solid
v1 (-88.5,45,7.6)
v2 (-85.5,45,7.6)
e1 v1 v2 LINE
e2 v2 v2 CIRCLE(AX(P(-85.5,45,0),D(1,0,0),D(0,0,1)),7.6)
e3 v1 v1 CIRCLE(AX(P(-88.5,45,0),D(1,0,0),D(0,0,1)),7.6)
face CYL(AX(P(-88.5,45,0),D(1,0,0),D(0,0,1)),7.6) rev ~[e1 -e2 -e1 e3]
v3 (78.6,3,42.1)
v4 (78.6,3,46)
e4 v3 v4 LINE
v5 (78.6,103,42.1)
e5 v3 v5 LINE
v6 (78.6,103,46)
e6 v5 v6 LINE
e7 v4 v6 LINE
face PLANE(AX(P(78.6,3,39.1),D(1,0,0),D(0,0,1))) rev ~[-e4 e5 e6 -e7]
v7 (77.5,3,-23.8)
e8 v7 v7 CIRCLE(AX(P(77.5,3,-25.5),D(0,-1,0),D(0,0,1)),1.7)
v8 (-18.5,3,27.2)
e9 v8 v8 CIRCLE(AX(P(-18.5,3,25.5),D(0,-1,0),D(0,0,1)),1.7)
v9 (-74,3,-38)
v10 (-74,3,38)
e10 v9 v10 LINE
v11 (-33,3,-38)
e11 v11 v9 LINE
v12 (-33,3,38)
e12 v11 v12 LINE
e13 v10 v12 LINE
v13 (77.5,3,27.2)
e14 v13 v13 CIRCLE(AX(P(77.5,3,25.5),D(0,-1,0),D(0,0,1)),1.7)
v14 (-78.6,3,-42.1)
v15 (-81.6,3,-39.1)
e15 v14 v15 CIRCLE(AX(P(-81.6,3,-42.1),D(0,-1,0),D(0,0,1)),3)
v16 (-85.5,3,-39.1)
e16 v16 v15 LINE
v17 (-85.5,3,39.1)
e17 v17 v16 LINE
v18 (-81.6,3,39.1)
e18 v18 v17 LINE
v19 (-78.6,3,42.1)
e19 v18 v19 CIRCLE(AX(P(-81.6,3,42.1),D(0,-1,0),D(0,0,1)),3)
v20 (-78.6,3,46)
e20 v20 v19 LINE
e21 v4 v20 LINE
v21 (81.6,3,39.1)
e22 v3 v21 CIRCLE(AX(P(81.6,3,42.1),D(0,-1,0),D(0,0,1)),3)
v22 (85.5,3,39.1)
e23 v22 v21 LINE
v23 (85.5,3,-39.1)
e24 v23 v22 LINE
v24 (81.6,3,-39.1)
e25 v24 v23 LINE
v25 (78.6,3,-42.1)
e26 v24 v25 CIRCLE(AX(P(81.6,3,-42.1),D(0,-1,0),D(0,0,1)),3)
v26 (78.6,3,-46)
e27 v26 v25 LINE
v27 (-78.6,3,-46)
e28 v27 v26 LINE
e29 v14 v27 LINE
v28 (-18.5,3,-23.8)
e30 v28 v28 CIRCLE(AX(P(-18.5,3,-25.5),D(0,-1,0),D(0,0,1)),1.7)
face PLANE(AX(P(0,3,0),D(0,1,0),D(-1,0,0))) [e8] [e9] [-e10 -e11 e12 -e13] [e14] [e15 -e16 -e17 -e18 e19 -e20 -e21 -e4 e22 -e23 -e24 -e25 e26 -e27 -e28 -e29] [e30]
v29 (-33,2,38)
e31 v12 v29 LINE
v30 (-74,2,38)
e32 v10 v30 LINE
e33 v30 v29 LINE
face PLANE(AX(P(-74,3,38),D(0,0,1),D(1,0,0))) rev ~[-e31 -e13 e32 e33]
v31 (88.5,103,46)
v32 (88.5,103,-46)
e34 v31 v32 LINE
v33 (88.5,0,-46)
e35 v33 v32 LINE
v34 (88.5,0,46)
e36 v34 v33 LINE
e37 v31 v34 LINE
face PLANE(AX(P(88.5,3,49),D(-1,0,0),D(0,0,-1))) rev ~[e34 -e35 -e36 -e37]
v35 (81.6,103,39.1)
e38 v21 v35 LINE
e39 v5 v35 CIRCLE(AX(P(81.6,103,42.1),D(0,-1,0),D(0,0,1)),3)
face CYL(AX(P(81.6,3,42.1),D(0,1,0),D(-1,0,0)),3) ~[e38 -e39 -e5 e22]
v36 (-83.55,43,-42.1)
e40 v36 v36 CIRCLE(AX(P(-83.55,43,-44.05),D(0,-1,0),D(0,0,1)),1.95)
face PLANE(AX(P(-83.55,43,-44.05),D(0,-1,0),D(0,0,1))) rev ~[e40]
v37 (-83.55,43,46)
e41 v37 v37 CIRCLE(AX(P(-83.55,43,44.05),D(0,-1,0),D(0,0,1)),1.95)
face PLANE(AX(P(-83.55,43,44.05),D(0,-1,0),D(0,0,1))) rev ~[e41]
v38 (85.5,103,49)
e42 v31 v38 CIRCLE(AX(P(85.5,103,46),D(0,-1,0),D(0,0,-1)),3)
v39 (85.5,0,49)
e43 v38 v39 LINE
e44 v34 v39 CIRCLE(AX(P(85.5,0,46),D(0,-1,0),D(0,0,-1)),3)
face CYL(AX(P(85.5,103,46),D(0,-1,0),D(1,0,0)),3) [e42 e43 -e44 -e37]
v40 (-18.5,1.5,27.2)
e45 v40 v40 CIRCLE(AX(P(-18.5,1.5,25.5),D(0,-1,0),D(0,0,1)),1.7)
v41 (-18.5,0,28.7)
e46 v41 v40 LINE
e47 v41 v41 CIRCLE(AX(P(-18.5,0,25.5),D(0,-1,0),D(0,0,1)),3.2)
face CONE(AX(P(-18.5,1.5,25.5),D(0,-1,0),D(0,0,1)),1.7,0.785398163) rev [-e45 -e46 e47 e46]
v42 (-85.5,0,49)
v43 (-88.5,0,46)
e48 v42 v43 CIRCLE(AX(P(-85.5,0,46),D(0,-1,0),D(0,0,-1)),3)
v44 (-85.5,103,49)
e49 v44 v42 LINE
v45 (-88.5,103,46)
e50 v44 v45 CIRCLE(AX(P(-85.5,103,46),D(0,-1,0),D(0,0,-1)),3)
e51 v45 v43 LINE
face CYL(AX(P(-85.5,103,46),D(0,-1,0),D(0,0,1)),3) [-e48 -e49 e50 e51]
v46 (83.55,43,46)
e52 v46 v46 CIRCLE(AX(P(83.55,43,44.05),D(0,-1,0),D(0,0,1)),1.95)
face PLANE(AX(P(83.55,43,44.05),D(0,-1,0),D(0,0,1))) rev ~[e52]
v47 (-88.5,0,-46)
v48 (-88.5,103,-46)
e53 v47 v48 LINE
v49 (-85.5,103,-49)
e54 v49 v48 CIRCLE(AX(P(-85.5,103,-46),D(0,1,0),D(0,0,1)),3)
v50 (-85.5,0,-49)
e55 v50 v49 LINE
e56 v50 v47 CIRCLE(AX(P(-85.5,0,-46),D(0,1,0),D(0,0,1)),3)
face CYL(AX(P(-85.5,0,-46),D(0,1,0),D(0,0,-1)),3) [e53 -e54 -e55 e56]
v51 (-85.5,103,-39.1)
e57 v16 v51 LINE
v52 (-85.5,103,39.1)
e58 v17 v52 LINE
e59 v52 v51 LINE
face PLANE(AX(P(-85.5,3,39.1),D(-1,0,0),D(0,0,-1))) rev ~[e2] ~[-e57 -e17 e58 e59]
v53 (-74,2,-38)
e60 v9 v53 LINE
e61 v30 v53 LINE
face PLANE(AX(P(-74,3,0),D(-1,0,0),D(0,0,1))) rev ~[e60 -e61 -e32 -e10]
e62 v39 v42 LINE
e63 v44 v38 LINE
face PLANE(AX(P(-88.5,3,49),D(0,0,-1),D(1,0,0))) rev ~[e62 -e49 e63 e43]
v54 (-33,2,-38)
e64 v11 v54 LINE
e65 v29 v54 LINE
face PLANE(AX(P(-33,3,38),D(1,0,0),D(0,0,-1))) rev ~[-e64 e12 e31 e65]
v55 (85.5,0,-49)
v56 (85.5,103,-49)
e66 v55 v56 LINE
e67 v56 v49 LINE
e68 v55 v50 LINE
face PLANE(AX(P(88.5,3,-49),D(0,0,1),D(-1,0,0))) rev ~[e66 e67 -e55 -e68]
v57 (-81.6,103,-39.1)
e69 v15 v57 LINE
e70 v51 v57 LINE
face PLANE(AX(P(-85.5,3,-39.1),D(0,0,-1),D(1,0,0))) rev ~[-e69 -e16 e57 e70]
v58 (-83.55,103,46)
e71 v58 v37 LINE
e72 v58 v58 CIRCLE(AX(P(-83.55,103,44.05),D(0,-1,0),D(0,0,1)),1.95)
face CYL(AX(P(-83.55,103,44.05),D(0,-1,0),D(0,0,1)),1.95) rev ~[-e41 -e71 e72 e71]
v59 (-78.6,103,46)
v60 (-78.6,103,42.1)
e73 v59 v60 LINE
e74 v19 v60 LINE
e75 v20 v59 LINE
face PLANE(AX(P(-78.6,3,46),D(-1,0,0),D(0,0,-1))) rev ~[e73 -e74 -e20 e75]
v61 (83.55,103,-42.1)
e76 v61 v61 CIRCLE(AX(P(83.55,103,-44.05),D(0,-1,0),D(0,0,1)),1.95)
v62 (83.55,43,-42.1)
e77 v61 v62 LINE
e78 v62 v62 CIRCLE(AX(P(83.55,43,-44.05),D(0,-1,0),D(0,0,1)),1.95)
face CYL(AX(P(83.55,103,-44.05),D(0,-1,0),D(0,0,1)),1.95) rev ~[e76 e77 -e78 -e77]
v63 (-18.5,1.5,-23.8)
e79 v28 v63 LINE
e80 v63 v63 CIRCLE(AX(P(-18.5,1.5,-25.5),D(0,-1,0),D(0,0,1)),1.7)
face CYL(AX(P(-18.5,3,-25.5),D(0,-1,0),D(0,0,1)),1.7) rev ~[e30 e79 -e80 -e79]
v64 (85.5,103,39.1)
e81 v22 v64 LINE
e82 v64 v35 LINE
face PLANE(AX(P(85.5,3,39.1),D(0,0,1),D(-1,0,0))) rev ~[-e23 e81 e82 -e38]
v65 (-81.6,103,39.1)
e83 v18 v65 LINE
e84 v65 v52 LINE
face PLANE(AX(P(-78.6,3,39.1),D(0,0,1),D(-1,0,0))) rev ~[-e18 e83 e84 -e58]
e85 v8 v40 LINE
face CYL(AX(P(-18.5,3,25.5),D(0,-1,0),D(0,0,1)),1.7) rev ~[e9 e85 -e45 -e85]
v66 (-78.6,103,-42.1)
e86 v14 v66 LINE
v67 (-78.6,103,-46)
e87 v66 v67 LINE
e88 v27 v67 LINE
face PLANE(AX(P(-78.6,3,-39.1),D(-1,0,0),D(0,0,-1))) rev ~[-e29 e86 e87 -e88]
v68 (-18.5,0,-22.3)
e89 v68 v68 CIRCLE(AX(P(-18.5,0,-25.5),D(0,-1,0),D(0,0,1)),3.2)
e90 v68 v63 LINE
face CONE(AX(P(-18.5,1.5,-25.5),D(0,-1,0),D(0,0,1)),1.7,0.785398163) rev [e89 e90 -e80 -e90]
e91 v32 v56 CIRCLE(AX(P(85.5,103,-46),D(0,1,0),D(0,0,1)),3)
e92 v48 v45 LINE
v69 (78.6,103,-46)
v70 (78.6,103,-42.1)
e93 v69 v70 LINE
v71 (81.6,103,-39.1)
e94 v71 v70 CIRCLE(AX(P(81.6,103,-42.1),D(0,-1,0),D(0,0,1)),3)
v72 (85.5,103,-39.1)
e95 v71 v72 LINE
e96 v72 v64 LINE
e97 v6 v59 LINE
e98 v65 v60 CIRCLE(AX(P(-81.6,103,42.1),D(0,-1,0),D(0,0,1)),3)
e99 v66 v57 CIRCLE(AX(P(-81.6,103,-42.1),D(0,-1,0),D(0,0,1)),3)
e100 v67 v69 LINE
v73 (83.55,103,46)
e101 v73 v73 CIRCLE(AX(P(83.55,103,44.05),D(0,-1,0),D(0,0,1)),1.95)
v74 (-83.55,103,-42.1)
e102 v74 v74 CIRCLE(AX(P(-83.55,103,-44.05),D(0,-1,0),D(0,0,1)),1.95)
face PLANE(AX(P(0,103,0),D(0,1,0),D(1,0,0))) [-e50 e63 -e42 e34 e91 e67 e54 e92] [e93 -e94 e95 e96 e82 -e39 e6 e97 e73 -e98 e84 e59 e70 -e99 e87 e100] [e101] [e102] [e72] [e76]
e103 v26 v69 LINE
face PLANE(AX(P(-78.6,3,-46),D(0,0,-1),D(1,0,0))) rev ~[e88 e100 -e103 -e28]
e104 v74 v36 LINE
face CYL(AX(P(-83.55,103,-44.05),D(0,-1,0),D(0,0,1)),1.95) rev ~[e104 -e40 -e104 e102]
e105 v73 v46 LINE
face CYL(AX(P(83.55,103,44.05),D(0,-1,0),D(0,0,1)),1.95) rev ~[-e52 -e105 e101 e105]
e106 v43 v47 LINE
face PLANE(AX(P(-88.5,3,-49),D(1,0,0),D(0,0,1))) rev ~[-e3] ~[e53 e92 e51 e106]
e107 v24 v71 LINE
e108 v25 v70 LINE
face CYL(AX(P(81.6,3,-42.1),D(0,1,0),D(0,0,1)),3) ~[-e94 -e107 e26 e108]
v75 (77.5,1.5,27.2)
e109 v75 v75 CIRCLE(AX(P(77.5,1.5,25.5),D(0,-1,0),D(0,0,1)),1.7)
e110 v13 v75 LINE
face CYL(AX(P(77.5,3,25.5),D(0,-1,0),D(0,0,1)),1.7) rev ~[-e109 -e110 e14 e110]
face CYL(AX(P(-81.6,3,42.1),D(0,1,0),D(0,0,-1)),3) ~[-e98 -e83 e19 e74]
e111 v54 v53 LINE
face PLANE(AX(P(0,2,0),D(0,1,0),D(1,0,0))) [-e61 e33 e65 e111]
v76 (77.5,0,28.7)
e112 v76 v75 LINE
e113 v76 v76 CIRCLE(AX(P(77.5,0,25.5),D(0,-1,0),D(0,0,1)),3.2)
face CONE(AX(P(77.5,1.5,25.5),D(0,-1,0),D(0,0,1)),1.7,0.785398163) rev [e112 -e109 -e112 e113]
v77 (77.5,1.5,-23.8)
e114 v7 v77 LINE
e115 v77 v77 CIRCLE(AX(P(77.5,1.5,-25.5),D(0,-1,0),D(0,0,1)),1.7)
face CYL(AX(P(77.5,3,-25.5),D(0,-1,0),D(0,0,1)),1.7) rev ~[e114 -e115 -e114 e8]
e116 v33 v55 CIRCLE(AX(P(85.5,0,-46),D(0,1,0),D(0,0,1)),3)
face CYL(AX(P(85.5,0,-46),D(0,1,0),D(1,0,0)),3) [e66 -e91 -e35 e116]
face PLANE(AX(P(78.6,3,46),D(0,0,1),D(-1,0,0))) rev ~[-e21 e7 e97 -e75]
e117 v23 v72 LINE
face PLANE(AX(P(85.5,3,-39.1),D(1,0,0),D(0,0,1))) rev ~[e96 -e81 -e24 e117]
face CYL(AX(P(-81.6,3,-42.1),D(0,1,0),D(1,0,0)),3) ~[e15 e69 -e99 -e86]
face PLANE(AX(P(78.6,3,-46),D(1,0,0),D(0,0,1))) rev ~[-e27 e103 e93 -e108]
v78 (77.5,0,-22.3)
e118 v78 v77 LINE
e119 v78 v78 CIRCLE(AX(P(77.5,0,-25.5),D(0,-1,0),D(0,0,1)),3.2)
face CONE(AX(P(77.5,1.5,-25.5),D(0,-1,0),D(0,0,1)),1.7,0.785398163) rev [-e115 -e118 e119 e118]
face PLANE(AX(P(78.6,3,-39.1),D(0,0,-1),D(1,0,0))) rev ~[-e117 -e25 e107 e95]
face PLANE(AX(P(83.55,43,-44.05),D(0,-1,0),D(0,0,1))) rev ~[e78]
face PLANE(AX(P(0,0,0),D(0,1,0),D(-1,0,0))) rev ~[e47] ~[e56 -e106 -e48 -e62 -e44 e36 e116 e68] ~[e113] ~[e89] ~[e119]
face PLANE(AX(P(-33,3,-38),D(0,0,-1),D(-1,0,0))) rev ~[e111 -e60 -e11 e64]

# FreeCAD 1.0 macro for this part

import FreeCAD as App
import Part
import Sketcher
from FreeCAD import Vector
Q = App.Units.Quantity


def edges_at(feature, points):
    """Names of the edges that pass closest to the given points."""
    edges = feature.Shape.Edges
    near = lambda p: min(range(len(edges)), key=lambda i: edges[i].distToShape(Part.Vertex(*p))[0])
    return sorted({f"Edge{near(p) + 1}" for p in points})

doc = App.newDocument("Part")
body = doc.addObject("PartDesign::Body", "Body")

# Sketch on XZ plane
sketch1 = body.newObject("Sketcher::SketchObject", "Sketch")
sketch1.AttachmentSupport = (doc.getObject("XZ_Plane"), [""])
sketch1.MapMode = "FlatFace"
sketch1.addGeometry(Part.LineSegment(Vector(88, -49, 0), Vector(-88, -49, 0)), False)
sketch1.addGeometry(Part.LineSegment(Vector(-88, -49, 0), Vector(-88, 49, 0)), False)
sketch1.addGeometry(Part.LineSegment(Vector(-88, 49, 0), Vector(88, 49, 0)), False)
sketch1.addGeometry(Part.LineSegment(Vector(88, 49, 0), Vector(88, -49, 0)), False)
sketch1.addConstraint(Sketcher.Constraint("Coincident", 0, 2, 1, 1))
sketch1.addConstraint(Sketcher.Constraint("Coincident", 1, 2, 2, 1))
sketch1.addConstraint(Sketcher.Constraint("Coincident", 2, 2, 3, 1))
sketch1.addConstraint(Sketcher.Constraint("Coincident", 3, 2, 0, 1))
sketch1.addConstraint(Sketcher.Constraint("Horizontal", 0))
sketch1.addConstraint(Sketcher.Constraint("Vertical", 1))
sketch1.addConstraint(Sketcher.Constraint("Horizontal", 2))
sketch1.addConstraint(Sketcher.Constraint("Vertical", 3))
sketch1.addConstraint(Sketcher.Constraint("Symmetric", 0, 2, 2, 2, -1, 1))
sketch1.addConstraint(Sketcher.Constraint("DistanceX", 0, 2, 0, 1, Q("177 mm")))
sketch1.addConstraint(Sketcher.Constraint("DistanceY", 1, 1, 1, 2, Q("98 mm")))
pad1 = body.newObject("PartDesign::Pad", "Pad")
pad1.Profile = sketch1
pad1.Length = 3
pad1.Reversed = True

# Sketch on XZ plane
sketch2 = body.newObject("Sketcher::SketchObject", "Sketch001")
sketch2.AttachmentSupport = (doc.getObject("XZ_Plane"), [""])
sketch2.MapMode = "FlatFace"
sketch2.AttachmentOffset = App.Placement(Vector(0, 0, -3), App.Rotation())
sketch2.addGeometry(Part.LineSegment(Vector(88, 49, 0), Vector(88, -49, 0)), False)
sketch2.addGeometry(Part.LineSegment(Vector(88, -49, 0), Vector(-88, -49, 0)), False)
sketch2.addGeometry(Part.LineSegment(Vector(-88, -49, 0), Vector(-88, 49, 0)), False)
sketch2.addGeometry(Part.LineSegment(Vector(-88, 49, 0), Vector(88, 49, 0)), False)
sketch2.addGeometry(Part.LineSegment(Vector(-79, 39, 0), Vector(-86, 39, 0)), False)
sketch2.addGeometry(Part.LineSegment(Vector(-86, 39, 0), Vector(-86, -39, 0)), False)
sketch2.addGeometry(Part.LineSegment(Vector(-86, -39, 0), Vector(-79, -39, 0)), False)
sketch2.addGeometry(Part.LineSegment(Vector(-79, -39, 0), Vector(-79, -46, 0)), False)
sketch2.addGeometry(Part.LineSegment(Vector(-79, -46, 0), Vector(79, -46, 0)), False)
sketch2.addGeometry(Part.LineSegment(Vector(79, -46, 0), Vector(79, -39, 0)), False)
sketch2.addGeometry(Part.LineSegment(Vector(79, -39, 0), Vector(86, -39, 0)), False)
sketch2.addGeometry(Part.LineSegment(Vector(86, -39, 0), Vector(86, 39, 0)), False)
sketch2.addGeometry(Part.LineSegment(Vector(86, 39, 0), Vector(79, 39, 0)), False)
sketch2.addGeometry(Part.LineSegment(Vector(79, 39, 0), Vector(79, 46, 0)), False)
sketch2.addGeometry(Part.LineSegment(Vector(79, 46, 0), Vector(-79, 46, 0)), False)
sketch2.addGeometry(Part.LineSegment(Vector(-79, 46, 0), Vector(-79, 39, 0)), False)
sketch2.addConstraint(Sketcher.Constraint("Coincident", 0, 2, 1, 1))
sketch2.addConstraint(Sketcher.Constraint("Coincident", 1, 2, 2, 1))
sketch2.addConstraint(Sketcher.Constraint("Coincident", 2, 2, 3, 1))
sketch2.addConstraint(Sketcher.Constraint("Coincident", 3, 2, 0, 1))
sketch2.addConstraint(Sketcher.Constraint("Coincident", 4, 2, 5, 1))
sketch2.addConstraint(Sketcher.Constraint("Coincident", 5, 2, 6, 1))
sketch2.addConstraint(Sketcher.Constraint("Coincident", 6, 2, 7, 1))
sketch2.addConstraint(Sketcher.Constraint("Coincident", 7, 2, 8, 1))
sketch2.addConstraint(Sketcher.Constraint("Coincident", 8, 2, 9, 1))
sketch2.addConstraint(Sketcher.Constraint("Coincident", 9, 2, 10, 1))
sketch2.addConstraint(Sketcher.Constraint("Coincident", 10, 2, 11, 1))
sketch2.addConstraint(Sketcher.Constraint("Coincident", 11, 2, 12, 1))
sketch2.addConstraint(Sketcher.Constraint("Coincident", 12, 2, 13, 1))
sketch2.addConstraint(Sketcher.Constraint("Coincident", 13, 2, 14, 1))
sketch2.addConstraint(Sketcher.Constraint("Coincident", 14, 2, 15, 1))
sketch2.addConstraint(Sketcher.Constraint("Coincident", 15, 2, 4, 1))
sketch2.addConstraint(Sketcher.Constraint("Vertical", 0))
sketch2.addConstraint(Sketcher.Constraint("Horizontal", 1))
sketch2.addConstraint(Sketcher.Constraint("Vertical", 2))
sketch2.addConstraint(Sketcher.Constraint("Horizontal", 3))
sketch2.addConstraint(Sketcher.Constraint("Horizontal", 4))
sketch2.addConstraint(Sketcher.Constraint("Vertical", 5))
sketch2.addConstraint(Sketcher.Constraint("Horizontal", 6))
sketch2.addConstraint(Sketcher.Constraint("Vertical", 7))
sketch2.addConstraint(Sketcher.Constraint("Horizontal", 8))
sketch2.addConstraint(Sketcher.Constraint("Vertical", 9))
sketch2.addConstraint(Sketcher.Constraint("Horizontal", 10))
sketch2.addConstraint(Sketcher.Constraint("Vertical", 11))
sketch2.addConstraint(Sketcher.Constraint("Horizontal", 12))
sketch2.addConstraint(Sketcher.Constraint("Vertical", 13))
sketch2.addConstraint(Sketcher.Constraint("Horizontal", 14))
sketch2.addConstraint(Sketcher.Constraint("Vertical", 15))
sketch2.addConstraint(Sketcher.Constraint("Symmetric", 0, 2, 2, 2, -1, 1))
sketch2.addConstraint(Sketcher.Constraint("Symmetric", 4, 2, 10, 2, -1, 1))
sketch2.addConstraint(Sketcher.Constraint("Symmetric", 6, 2, 12, 2, -1, 1))
sketch2.addConstraint(Sketcher.Constraint("Symmetric", 8, 2, 14, 2, -1, 1))
sketch2.addConstraint(Sketcher.Constraint("Symmetric", 6, 2, 9, 2, -2))
sketch2.addConstraint(Sketcher.Constraint("Equal", 12, 7))
sketch2.addConstraint(Sketcher.Constraint("DistanceX", 2, 2, 4, 2, Q("3 mm")))
sketch2.addConstraint(Sketcher.Constraint("DistanceY", 1, 2, 7, 2, Q("3 mm")))
sketch2.addConstraint(Sketcher.Constraint("DistanceY", 4, 2, 2, 2, Q("9.9 mm")))
sketch2.addConstraint(Sketcher.Constraint("DistanceX", 1, 2, 1, 1, Q("177 mm")))
sketch2.addConstraint(Sketcher.Constraint("DistanceY", 0, 2, 0, 1, Q("98 mm")))
pad2 = body.newObject("PartDesign::Pad", "Pad001")
pad2.Profile = sketch2
pad2.Length = 100
pad2.Reversed = True
doc.recompute()

fillet = body.newObject("PartDesign::Fillet", "Fillet")
fillet.Base = (pad2, edges_at(pad2, [
    (-78.6, 53, -39.1),
    (78.6, 53, -39.1),
    (-78.6, 53, 39.1),
    (78.6, 53, 39.1),
    (88.5, 51.5, -49),
    (-88.5, 51.5, -49),
    (-88.5, 51.5, 49),
    (88.5, 51.5, 49),
]))
fillet.Radius = 3

# Sketch on XZ plane
sketch3 = body.newObject("Sketcher::SketchObject", "Sketch002")
sketch3.AttachmentSupport = (doc.getObject("XZ_Plane"), [""])
sketch3.MapMode = "FlatFace"
sketch3.AttachmentOffset = App.Placement(Vector(0, 0, -103), App.Rotation())
sketch3.addGeometry(Part.Circle(Vector(-83.5, -44, 0), Vector(0, 0, 1), 1.9), False)
sketch3.addGeometry(Part.Circle(Vector(-83.5, 44, 0), Vector(0, 0, 1), 1.9), False)
sketch3.addGeometry(Part.Circle(Vector(83.5, 44, 0), Vector(0, 0, 1), 1.9), False)
sketch3.addGeometry(Part.Circle(Vector(83.5, -44, 0), Vector(0, 0, 1), 1.9), False)
sketch3.addConstraint(Sketcher.Constraint("Equal", 0, 1))
sketch3.addConstraint(Sketcher.Constraint("Equal", 1, 2))
sketch3.addConstraint(Sketcher.Constraint("Equal", 2, 3))
sketch3.addConstraint(Sketcher.Constraint("Symmetric", 0, 3, 2, 3, -1, 1))
sketch3.addConstraint(Sketcher.Constraint("Symmetric", 1, 3, 3, 3, -1, 1))
sketch3.addConstraint(Sketcher.Constraint("Symmetric", 1, 3, 2, 3, -2))
sketch3.addConstraint(Sketcher.Constraint("Diameter", 0, Q("3.9 mm")))
sketch3.addConstraint(Sketcher.Constraint("DistanceY", 0, 3, 1, 3, Q("88.1 mm")))
sketch3.addConstraint(Sketcher.Constraint("DistanceX", 1, 3, 2, 3, Q("167.1 mm")))
doc.recompute()
hole = body.newObject("PartDesign::Hole", "Hole")
hole.Profile = sketch3
hole.ThreadType = "None"
hole.Diameter = 3.9
hole.DepthType = "Dimension"
hole.Depth = 60
hole.DrillPoint = "Flat"
hole.Reversed = True

# Sketch on XZ plane
sketch4 = body.newObject("Sketcher::SketchObject", "Sketch003")
sketch4.AttachmentSupport = (doc.getObject("XZ_Plane"), [""])
sketch4.MapMode = "FlatFace"
sketch4.AttachmentOffset = App.Placement(Vector(0, 0, -3), App.Rotation())
sketch4.addGeometry(Part.Circle(Vector(-18.5, -25.5, 0), Vector(0, 0, 1), 1.7), False)
sketch4.addGeometry(Part.Circle(Vector(77.5, -25.5, 0), Vector(0, 0, 1), 1.7), False)
sketch4.addGeometry(Part.Circle(Vector(-18.5, 25.5, 0), Vector(0, 0, 1), 1.7), False)
sketch4.addGeometry(Part.Circle(Vector(77.5, 25.5, 0), Vector(0, 0, 1), 1.7), False)
sketch4.addConstraint(Sketcher.Constraint("Equal", 0, 1))
sketch4.addConstraint(Sketcher.Constraint("Equal", 1, 2))
sketch4.addConstraint(Sketcher.Constraint("Equal", 2, 3))
sketch4.addConstraint(Sketcher.Constraint("Symmetric", 0, 3, 2, 3, -1))
sketch4.addConstraint(Sketcher.Constraint("Symmetric", 1, 3, 3, 3, -1))
sketch4.addConstraint(Sketcher.Constraint("Horizontal", 0, 3, 1, 3))
sketch4.addConstraint(Sketcher.Constraint("Diameter", 0, Q("3.4 mm")))
sketch4.addConstraint(Sketcher.Constraint("DistanceX", 0, 3, 1, 3, Q("96 mm")))
sketch4.addConstraint(Sketcher.Constraint("DistanceY", 0, 3, 2, 3, Q("51 mm")))
sketch4.addConstraint(Sketcher.Constraint("DistanceX", 0, 3, -1, 1, Q("18.5 mm")))
doc.recompute()
hole2 = body.newObject("PartDesign::Hole", "Hole001")
hole2.Profile = sketch4
hole2.ThreadType = "None"
hole2.Diameter = 3.4
hole2.DepthType = "ThroughAll"
hole2.Reversed = True

# Sketch on XZ plane
sketch5 = body.newObject("Sketcher::SketchObject", "Sketch004")
sketch5.AttachmentSupport = (doc.getObject("XZ_Plane"), [""])
sketch5.MapMode = "FlatFace"
sketch5.AttachmentOffset = App.Placement(Vector(0, 0, -3), App.Rotation())
sketch5.addGeometry(Part.LineSegment(Vector(-33, 38, 0), Vector(-33, -38, 0)), False)
sketch5.addGeometry(Part.LineSegment(Vector(-33, -38, 0), Vector(-74, -38, 0)), False)
sketch5.addGeometry(Part.LineSegment(Vector(-74, -38, 0), Vector(-74, 38, 0)), False)
sketch5.addGeometry(Part.LineSegment(Vector(-74, 38, 0), Vector(-33, 38, 0)), False)
sketch5.addConstraint(Sketcher.Constraint("Coincident", 0, 2, 1, 1))
sketch5.addConstraint(Sketcher.Constraint("Coincident", 1, 2, 2, 1))
sketch5.addConstraint(Sketcher.Constraint("Coincident", 2, 2, 3, 1))
sketch5.addConstraint(Sketcher.Constraint("Coincident", 3, 2, 0, 1))
sketch5.addConstraint(Sketcher.Constraint("Vertical", 0))
sketch5.addConstraint(Sketcher.Constraint("Horizontal", 1))
sketch5.addConstraint(Sketcher.Constraint("Vertical", 2))
sketch5.addConstraint(Sketcher.Constraint("Horizontal", 3))
sketch5.addConstraint(Sketcher.Constraint("DistanceX", 1, 2, 1, 1, Q("41 mm")))
sketch5.addConstraint(Sketcher.Constraint("DistanceY", 0, 2, 0, 1, Q("76 mm")))
sketch5.addConstraint(Sketcher.Constraint("DistanceX", 0, 2, -1, 1, Q("33 mm")))
sketch5.addConstraint(Sketcher.Constraint("DistanceY", 0, 2, -1, 1, Q("38 mm")))
pocket1 = body.newObject("PartDesign::Pocket", "Pocket")
pocket1.Profile = sketch5
pocket1.Length = 1
pocket1.Reversed = True
doc.recompute()

chamfer = body.newObject("PartDesign::Chamfer", "Chamfer")
chamfer.Base = (pocket1, edges_at(pocket1, [
    (77.5, 0, -27.2),
    (-18.5, 0, -27.2),
    (77.5, 0, 23.8),
    (-18.5, 0, 23.8),
]))
chamfer.Size = 1.5

# Sketch on YZ plane
sketch6 = body.newObject("Sketcher::SketchObject", "Sketch005")
sketch6.AttachmentSupport = (doc.getObject("YZ_Plane"), [""])
sketch6.MapMode = "FlatFace"
sketch6.AttachmentOffset = App.Placement(Vector(0, 0, -88.5), App.Rotation())
sketch6.addGeometry(Part.Circle(Vector(45, 0, 0), Vector(0, 0, 1), 8), False)
sketch6.addConstraint(Sketcher.Constraint("PointOnObject", 0, 3, -1))
sketch6.addConstraint(Sketcher.Constraint("Diameter", 0, Q("15.2 mm")))
sketch6.addConstraint(Sketcher.Constraint("DistanceX", -1, 1, 0, 3, Q("45 mm")))
doc.recompute()
hole3 = body.newObject("PartDesign::Hole", "Hole002")
hole3.Profile = sketch6
hole3.ThreadType = "None"
hole3.Diameter = 15.2
hole3.DepthType = "Dimension"
hole3.Depth = 3
hole3.DrillPoint = "Flat"
hole3.Reversed = True

doc.recompute()
